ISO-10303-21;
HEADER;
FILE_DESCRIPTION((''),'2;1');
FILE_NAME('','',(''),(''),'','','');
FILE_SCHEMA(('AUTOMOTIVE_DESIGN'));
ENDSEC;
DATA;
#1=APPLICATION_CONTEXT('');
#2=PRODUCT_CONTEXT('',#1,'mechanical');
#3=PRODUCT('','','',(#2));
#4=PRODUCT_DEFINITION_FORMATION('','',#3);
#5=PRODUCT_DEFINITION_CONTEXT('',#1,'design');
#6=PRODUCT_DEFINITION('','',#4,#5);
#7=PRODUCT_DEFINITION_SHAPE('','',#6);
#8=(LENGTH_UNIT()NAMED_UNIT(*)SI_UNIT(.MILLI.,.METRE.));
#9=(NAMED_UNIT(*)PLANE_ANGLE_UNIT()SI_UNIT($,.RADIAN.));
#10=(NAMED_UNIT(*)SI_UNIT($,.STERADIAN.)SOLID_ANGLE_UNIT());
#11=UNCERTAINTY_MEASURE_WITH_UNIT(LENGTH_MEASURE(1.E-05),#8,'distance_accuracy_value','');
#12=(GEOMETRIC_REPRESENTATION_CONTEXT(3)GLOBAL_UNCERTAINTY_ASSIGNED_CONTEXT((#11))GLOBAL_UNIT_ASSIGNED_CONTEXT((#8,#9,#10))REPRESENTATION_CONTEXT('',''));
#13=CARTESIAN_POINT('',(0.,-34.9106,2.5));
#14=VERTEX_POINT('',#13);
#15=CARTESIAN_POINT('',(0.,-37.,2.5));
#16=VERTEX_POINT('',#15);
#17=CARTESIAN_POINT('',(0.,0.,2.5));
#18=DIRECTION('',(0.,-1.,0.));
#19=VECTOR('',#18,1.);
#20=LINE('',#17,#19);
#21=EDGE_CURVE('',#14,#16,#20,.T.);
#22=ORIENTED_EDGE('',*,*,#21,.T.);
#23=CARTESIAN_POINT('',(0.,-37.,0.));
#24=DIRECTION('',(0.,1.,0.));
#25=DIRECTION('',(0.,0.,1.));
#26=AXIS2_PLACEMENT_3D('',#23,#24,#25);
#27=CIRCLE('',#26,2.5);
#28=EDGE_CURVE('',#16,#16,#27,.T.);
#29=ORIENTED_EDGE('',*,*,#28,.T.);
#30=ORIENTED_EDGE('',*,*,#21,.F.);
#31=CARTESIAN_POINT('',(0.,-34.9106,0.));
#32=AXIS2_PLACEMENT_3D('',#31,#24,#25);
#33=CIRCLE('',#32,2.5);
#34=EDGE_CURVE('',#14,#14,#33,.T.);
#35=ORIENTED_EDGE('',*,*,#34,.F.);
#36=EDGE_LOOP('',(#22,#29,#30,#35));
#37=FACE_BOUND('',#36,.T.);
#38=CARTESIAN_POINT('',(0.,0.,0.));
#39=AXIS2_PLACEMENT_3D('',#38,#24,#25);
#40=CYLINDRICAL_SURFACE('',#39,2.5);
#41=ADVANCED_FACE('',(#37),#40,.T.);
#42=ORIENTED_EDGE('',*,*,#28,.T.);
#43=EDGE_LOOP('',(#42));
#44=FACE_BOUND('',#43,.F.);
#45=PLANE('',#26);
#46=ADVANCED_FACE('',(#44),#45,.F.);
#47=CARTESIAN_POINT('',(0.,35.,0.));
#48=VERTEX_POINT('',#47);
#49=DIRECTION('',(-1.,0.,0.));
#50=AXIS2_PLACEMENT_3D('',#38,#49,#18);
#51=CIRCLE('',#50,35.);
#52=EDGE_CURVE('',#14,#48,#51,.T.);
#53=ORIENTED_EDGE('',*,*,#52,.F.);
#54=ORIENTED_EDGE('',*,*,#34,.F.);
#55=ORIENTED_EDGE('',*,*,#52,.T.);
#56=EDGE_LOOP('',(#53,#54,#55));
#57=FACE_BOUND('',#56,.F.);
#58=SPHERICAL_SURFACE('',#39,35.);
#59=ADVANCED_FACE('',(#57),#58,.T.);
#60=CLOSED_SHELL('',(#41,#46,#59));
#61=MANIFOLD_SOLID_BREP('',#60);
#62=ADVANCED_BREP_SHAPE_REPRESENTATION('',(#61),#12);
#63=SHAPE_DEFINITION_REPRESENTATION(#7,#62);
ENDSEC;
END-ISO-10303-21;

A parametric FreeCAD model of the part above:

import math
import FreeCAD as App
import Part
import Sketcher
from FreeCAD import Vector
Q = App.Units.Quantity

doc = App.newDocument("Part")
params = doc.addObject("Spreadsheet::Sheet", "Params")
for row, (alias, value) in enumerate([
    ("sketch1_radius", "35 mm"),
    ("revolution_angle", "360 deg"),
    ("sketch2_diameter", "5 mm"),
    ("pad1_length", "37 mm"),
], start=1):
    params.set(f"A{row}", alias)
    params.set(f"B{row}", "=" + value)
    params.setAlias(f"B{row}", alias)

body = doc.addObject("PartDesign::Body", "Body")

# Sketch on YZ plane
sketch1 = body.newObject("Sketcher::SketchObject", "Sketch")
sketch1.AttachmentSupport = (doc.getObject("YZ_Plane"), [""])
sketch1.MapMode = "FlatFace"
sketch1.addGeometry([
    Part.LineSegment(Vector(-35, 0, 0), Vector(35, 0, 0)),
    Part.ArcOfCircle(Part.Circle(Vector(0, 0, 0), Vector(0, 0, 1), 35), math.radians(0), math.radians(180)),
], False)
sketch1.addConstraint([
    Sketcher.Constraint("Coincident", 0, 1, 1, 2),
    Sketcher.Constraint("Coincident", 1, 1, 0, 2),
    Sketcher.Constraint("Horizontal", 0),
    Sketcher.Constraint("Coincident", 1, 3, -1, 1),
    Sketcher.Constraint("PointOnObject", 0, 1, -1),
    Sketcher.Constraint("Radius", 1, Q("35 mm")),
])
sketch1.setExpression("Constraints[5]", "Params.sketch1_radius")
revolution = body.newObject("PartDesign::Revolution", "Revolution")
revolution.Profile = sketch1
revolution.ReferenceAxis = (sketch1, ["H_Axis"])
revolution.setExpression("Angle", "Params.revolution_angle")

# Sketch on XZ plane
sketch2 = body.newObject("Sketcher::SketchObject", "Sketch001")
sketch2.AttachmentSupport = (doc.getObject("XZ_Plane"), [""])
sketch2.MapMode = "FlatFace"
sketch2.addGeometry(Part.Circle(Vector(0, 0, 0), Vector(0, 0, 1), 2.5), False)
sketch2.addConstraint([
    Sketcher.Constraint("Coincident", 0, 3, -1, 1),
    Sketcher.Constraint("Diameter", 0, Q("5 mm")),
])
sketch2.setExpression("Constraints[1]", "Params.sketch2_diameter")
pad1 = body.newObject("PartDesign::Pad", "Pad")
pad1.Profile = sketch2
pad1.setExpression("Length", "Params.pad1_length")

doc.recompute()
